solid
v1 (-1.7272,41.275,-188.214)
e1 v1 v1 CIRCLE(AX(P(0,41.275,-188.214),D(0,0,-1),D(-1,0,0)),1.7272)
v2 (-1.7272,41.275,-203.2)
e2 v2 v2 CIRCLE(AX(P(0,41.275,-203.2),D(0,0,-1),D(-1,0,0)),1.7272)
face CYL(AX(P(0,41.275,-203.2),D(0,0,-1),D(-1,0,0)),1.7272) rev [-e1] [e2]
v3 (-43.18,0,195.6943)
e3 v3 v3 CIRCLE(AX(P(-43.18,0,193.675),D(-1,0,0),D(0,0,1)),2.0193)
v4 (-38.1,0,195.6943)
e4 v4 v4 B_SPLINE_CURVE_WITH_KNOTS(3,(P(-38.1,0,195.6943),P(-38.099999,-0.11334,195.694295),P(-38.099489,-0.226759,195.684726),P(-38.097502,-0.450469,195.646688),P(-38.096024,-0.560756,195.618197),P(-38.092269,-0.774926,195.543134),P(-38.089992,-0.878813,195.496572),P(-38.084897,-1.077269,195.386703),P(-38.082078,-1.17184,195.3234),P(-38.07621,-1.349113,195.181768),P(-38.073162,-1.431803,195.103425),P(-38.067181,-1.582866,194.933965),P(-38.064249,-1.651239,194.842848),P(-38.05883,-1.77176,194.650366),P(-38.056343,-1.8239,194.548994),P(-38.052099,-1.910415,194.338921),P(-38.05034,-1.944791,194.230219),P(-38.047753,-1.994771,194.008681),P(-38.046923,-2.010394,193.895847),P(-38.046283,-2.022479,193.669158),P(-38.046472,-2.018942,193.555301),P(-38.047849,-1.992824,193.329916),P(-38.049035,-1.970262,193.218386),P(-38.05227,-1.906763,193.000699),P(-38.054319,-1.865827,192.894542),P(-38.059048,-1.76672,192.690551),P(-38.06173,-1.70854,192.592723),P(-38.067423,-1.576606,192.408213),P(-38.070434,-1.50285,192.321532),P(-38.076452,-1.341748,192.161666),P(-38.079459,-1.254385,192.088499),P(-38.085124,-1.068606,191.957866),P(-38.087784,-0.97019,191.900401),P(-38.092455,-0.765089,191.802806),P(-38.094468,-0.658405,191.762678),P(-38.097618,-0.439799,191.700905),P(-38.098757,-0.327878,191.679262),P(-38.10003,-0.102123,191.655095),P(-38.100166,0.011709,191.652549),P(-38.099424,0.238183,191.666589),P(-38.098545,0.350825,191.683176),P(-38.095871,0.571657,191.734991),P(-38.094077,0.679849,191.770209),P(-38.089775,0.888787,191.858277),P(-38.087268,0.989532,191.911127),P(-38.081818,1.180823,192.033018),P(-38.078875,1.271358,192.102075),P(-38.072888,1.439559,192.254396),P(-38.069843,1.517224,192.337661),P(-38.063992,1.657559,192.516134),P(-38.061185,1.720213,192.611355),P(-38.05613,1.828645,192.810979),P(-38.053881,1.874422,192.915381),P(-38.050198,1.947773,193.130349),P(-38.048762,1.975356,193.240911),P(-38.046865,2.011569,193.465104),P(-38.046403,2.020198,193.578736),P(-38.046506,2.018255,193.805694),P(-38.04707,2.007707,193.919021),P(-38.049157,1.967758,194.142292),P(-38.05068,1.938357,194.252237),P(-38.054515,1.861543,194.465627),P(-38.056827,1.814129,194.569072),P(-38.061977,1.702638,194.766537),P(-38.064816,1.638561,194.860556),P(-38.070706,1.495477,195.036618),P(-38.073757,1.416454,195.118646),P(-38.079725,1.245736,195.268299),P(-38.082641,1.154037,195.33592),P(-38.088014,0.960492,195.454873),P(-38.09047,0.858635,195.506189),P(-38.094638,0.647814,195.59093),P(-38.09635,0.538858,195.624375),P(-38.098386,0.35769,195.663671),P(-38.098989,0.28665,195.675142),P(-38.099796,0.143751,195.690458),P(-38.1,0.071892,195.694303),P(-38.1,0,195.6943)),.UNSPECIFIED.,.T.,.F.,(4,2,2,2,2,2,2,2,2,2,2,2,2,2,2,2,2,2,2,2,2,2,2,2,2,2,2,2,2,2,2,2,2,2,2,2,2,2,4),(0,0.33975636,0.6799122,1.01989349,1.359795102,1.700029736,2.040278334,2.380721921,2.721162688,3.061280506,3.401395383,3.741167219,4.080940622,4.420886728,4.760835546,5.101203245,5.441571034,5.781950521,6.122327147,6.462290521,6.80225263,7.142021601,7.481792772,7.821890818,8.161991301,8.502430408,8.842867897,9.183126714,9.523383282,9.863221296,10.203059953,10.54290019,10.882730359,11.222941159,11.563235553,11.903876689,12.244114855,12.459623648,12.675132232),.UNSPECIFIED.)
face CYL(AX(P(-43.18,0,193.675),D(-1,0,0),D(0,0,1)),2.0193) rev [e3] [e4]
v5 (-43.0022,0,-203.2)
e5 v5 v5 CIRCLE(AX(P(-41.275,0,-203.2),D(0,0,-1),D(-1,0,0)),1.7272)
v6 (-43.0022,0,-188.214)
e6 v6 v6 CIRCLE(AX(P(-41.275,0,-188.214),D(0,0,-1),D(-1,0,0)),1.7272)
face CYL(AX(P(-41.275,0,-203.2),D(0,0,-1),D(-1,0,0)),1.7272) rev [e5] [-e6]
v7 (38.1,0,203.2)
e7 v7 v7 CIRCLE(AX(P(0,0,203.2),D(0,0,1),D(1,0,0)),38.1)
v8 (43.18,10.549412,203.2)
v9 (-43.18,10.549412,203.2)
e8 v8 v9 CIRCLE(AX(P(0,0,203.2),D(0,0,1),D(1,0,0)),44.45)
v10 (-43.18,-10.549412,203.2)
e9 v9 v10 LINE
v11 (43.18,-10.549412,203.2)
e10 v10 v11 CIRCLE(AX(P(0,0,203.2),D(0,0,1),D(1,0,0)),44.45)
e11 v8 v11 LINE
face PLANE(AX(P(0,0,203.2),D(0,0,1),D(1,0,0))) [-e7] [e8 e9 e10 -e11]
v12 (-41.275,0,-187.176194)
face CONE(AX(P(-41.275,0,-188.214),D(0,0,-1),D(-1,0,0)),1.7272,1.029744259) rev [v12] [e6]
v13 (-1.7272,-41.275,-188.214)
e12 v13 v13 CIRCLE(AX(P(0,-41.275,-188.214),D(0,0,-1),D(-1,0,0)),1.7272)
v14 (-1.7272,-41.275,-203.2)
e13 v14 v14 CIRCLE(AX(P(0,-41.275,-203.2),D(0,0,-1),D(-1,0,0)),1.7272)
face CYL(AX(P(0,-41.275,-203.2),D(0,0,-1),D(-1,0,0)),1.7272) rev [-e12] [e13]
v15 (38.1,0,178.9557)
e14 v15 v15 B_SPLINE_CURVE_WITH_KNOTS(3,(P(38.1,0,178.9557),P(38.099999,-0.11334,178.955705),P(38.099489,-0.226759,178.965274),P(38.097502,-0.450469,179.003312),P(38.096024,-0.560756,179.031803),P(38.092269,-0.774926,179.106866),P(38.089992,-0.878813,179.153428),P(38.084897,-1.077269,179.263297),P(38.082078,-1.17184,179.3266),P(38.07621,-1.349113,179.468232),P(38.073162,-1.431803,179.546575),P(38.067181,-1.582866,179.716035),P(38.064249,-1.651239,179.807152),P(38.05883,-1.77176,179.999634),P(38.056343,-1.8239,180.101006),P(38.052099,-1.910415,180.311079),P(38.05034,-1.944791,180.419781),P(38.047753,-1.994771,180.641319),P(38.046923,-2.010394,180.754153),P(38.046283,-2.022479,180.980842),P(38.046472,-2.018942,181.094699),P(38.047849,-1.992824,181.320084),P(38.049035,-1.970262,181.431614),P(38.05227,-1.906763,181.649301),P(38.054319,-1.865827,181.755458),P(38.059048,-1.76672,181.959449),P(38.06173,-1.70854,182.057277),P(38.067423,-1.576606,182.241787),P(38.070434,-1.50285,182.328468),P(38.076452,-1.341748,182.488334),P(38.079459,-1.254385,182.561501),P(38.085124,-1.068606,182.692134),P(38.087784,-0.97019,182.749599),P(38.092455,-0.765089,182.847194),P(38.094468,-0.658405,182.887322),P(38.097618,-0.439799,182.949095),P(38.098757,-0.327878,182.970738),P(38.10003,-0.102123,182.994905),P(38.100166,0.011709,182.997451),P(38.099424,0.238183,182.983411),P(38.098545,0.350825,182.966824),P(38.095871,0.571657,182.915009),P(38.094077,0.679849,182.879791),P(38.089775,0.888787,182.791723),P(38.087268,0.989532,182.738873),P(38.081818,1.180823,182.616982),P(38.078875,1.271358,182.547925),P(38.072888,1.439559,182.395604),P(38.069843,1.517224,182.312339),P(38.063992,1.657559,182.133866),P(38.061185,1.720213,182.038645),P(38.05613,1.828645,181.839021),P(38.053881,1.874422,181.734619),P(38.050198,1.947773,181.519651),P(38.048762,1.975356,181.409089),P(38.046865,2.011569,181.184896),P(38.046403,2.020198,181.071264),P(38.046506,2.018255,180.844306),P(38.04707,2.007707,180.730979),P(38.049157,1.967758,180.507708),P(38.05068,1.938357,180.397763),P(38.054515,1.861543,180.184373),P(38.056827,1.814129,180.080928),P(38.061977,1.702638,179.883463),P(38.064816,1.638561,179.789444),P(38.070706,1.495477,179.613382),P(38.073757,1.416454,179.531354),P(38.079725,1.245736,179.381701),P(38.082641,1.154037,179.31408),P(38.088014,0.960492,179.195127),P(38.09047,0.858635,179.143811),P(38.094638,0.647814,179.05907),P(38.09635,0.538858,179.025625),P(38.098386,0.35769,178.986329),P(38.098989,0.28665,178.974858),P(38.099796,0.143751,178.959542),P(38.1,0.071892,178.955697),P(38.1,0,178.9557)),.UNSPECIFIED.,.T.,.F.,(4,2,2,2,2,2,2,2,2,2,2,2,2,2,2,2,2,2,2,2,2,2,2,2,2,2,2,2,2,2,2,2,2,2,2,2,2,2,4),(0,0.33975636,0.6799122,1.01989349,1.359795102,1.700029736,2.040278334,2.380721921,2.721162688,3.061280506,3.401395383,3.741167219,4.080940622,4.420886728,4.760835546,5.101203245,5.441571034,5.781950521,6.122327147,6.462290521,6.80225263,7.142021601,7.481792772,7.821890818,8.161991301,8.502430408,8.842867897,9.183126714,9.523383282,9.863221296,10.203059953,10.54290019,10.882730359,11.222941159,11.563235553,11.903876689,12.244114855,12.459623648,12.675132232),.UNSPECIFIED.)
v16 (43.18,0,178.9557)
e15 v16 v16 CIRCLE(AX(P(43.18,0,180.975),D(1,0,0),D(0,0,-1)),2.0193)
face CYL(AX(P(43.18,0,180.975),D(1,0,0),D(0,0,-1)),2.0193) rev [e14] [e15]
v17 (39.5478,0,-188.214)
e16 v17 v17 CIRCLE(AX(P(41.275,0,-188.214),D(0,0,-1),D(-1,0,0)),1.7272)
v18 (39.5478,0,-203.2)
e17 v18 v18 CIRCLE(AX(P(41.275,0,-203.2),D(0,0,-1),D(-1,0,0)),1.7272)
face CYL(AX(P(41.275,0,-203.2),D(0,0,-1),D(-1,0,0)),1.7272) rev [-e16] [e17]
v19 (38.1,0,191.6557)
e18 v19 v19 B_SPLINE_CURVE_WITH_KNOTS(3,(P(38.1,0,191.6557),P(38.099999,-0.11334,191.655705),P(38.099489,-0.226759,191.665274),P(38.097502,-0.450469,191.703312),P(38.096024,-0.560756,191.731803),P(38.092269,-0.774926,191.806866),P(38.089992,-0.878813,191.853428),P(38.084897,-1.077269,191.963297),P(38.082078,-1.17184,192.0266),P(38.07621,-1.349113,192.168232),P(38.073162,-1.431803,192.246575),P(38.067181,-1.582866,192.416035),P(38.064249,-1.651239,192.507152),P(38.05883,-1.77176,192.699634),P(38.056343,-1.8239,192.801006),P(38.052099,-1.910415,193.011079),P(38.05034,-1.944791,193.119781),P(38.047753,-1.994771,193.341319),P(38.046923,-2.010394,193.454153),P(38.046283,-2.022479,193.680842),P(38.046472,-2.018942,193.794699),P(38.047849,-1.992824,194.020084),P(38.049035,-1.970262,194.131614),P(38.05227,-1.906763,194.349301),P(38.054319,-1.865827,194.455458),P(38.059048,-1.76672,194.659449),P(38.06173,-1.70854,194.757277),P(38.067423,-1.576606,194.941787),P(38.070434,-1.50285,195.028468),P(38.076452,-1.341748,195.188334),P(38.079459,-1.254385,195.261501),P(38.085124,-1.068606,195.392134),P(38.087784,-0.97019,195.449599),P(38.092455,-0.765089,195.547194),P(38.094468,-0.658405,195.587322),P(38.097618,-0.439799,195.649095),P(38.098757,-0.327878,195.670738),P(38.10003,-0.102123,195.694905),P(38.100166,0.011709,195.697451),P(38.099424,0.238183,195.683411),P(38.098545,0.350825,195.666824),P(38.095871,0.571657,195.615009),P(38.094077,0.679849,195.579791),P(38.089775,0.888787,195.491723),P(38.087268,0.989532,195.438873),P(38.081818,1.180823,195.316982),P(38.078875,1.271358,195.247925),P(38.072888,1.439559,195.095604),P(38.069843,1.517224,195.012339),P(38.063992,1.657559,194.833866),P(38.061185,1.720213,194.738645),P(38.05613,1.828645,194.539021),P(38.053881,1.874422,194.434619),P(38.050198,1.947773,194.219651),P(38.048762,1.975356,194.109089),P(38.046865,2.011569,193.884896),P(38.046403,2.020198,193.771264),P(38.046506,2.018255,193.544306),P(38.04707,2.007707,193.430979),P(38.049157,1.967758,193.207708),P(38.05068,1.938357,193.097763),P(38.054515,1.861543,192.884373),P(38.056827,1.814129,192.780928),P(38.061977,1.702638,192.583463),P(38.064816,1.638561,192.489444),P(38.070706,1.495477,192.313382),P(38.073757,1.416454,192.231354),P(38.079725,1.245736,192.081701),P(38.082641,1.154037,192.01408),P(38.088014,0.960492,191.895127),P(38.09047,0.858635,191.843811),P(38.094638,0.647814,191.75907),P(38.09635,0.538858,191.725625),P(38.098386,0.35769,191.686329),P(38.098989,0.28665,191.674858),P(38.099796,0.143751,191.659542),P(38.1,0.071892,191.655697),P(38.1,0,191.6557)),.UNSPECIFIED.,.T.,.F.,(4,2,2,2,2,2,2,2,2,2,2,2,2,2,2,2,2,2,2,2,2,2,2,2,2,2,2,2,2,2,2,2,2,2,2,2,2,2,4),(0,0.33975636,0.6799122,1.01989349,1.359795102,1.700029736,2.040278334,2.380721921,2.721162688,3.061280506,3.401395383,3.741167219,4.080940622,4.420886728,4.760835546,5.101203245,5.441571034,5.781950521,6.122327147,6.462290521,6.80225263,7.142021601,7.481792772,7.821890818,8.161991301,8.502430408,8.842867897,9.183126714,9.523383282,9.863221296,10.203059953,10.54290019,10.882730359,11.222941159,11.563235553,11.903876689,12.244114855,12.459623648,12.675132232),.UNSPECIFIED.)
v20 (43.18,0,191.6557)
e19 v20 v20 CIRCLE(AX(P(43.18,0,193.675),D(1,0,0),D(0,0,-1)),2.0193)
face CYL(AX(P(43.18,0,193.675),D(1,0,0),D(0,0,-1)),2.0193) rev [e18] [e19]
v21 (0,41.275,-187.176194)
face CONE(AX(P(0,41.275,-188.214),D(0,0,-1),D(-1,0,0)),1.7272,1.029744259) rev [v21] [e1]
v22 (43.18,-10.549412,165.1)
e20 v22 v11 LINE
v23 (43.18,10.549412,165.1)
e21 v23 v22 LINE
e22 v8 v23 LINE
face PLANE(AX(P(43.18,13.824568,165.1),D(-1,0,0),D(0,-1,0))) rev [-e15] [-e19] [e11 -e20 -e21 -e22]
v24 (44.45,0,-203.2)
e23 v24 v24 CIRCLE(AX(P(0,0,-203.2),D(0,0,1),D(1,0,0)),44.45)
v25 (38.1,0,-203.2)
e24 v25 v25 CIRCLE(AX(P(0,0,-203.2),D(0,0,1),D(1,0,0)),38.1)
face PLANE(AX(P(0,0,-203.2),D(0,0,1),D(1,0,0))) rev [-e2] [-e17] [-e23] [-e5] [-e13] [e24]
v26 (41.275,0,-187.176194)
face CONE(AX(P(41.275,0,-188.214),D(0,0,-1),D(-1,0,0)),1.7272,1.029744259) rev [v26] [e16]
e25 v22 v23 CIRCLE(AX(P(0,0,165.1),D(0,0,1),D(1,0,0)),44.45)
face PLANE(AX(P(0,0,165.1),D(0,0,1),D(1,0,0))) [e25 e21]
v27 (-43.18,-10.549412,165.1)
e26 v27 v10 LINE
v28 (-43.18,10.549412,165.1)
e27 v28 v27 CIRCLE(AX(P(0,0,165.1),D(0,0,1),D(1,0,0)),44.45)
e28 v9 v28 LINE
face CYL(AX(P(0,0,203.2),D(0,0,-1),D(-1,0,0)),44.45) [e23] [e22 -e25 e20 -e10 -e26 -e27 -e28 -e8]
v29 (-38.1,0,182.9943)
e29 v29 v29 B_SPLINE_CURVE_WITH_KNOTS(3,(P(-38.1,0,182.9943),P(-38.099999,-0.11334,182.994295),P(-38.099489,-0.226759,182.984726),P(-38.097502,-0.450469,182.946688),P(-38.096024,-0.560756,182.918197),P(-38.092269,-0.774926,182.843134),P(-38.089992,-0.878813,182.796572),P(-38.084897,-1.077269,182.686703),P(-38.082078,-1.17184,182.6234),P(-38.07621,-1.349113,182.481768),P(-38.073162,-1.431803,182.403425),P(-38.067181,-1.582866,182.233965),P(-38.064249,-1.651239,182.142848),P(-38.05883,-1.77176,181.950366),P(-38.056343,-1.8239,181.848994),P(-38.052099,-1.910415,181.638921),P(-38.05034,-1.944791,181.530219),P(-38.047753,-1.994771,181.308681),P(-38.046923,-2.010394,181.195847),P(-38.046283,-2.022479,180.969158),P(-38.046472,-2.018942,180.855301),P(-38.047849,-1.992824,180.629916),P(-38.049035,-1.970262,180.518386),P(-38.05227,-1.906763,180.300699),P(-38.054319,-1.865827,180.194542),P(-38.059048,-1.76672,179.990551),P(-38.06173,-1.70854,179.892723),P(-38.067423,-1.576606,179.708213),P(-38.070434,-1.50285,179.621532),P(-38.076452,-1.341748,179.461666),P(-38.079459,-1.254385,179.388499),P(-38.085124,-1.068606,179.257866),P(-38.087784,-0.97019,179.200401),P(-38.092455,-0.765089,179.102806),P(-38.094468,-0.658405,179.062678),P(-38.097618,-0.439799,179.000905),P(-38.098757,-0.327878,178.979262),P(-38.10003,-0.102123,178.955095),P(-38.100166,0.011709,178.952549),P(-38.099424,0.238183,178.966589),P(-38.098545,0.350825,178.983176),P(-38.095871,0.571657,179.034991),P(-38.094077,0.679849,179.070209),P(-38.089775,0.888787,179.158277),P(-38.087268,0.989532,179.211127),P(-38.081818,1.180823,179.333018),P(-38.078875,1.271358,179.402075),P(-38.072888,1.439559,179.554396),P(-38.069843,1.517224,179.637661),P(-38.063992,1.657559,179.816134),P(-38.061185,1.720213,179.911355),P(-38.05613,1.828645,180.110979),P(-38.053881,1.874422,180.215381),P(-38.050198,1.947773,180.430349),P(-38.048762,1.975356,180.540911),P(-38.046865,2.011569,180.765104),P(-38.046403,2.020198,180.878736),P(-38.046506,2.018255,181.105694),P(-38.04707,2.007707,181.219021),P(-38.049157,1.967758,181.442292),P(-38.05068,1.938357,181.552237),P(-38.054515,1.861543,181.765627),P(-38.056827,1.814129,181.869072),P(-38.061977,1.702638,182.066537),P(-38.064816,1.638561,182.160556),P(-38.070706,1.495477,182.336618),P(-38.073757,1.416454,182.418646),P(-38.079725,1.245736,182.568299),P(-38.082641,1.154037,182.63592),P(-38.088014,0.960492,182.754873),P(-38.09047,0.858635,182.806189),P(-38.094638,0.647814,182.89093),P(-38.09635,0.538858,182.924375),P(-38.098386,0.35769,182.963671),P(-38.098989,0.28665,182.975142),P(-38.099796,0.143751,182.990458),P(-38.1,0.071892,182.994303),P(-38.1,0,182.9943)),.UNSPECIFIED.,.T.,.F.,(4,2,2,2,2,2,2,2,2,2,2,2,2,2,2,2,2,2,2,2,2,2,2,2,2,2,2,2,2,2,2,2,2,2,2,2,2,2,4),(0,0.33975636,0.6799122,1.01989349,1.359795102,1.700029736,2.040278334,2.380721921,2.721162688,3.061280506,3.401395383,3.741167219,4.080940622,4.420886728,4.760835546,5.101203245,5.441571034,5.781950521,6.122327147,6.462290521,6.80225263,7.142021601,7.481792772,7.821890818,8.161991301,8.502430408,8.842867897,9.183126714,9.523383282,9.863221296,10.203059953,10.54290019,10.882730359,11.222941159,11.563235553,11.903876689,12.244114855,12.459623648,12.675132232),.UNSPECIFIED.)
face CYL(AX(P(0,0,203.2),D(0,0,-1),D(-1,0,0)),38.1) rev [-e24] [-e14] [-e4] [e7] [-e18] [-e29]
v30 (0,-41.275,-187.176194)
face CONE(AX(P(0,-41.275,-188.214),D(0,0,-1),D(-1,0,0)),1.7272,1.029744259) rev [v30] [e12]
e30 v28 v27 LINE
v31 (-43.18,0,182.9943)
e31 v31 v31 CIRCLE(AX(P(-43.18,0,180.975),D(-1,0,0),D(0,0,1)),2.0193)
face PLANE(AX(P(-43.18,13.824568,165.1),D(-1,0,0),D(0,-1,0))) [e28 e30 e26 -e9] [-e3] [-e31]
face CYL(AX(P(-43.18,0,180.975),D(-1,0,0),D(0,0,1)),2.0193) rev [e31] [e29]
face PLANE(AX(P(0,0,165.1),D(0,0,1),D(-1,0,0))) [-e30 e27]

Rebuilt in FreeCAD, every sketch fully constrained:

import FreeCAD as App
import Part
import Sketcher
from FreeCAD import Vector
Q = App.Units.Quantity


def add_polygon(sketch, points):
    """Adds a closed chain of lines whose ends are joined by coincident constraints."""
    first, n = sketch.GeometryCount, len(points)
    for a, b in zip(points, points[1:] + points[:1]):
        sketch.addGeometry(Part.LineSegment(App.Vector(*a, 0), App.Vector(*b, 0)), False)
    for i in range(n):
        sketch.addConstraint(Sketcher.Constraint("Coincident", first + i, 2, first + (i + 1) % n, 1))

doc = App.newDocument("Part")
params = doc.addObject("Spreadsheet::Sheet", "Params")
for row, (alias, value) in enumerate([
    ("sketch1_diameter", "3 in"),
    ("sketch1_diameter2", "3.5 in"),
    ("pad1_length", "16 in"),
    ("pocket1_length", "1.5 in"),
    ("sketch3_width", "0.54 in"),
    ("groove_angle", "360 deg"),
    ("linearpattern_pitch", "0.5 in"),
    ("sketch4_diameter", "0.136 in"),
    ("hole_diameter", "0.136 in"),
    ("hole_depth", "0.59 in"),
    ("sketch5_width", "0.54 in"),
    ("groove2_angle", "360 deg"),
], start=1):
    params.set(f"A{row}", alias)
    params.set(f"B{row}", "=" + value)
    params.setAlias(f"B{row}", alias)

body = doc.addObject("PartDesign::Body", "Body")

# Sketch on XY plane
sketch1 = doc.addObject("Sketcher::SketchObject", "Sketch")
body.addObject(sketch1)
sketch1.AttachmentSupport = (doc.XY_Plane, [""])
sketch1.MapMode = "FlatFace"
sketch1.addGeometry(Part.Circle(Vector(0, 0, 0), Vector(0, 0, 1), 44), False)
sketch1.addGeometry(Part.Circle(Vector(0, 0, 0), Vector(0, 0, 1), 38), False)
sketch1.addConstraint(Sketcher.Constraint("Coincident", 0, 3, -1, 1))
sketch1.addConstraint(Sketcher.Constraint("Coincident", 1, 3, -1, 1))
sketch1.addConstraint(Sketcher.Constraint("Diameter", 1, Q("3 in")))
sketch1.addConstraint(Sketcher.Constraint("Diameter", 0, Q("3.5 in")))
sketch1.setExpression("Constraints[2]", "Params.sketch1_diameter")
sketch1.setExpression("Constraints[3]", "Params.sketch1_diameter2")
pad1 = doc.addObject("PartDesign::Pad", "Pad")
body.addObject(pad1)
pad1.Profile = sketch1
pad1.setExpression("Length", "Params.pad1_length")
pad1.Midplane = True

# Sketch on XY plane
sketch2 = doc.addObject("Sketcher::SketchObject", "Sketch001")
body.addObject(sketch2)
sketch2.AttachmentSupport = (doc.XY_Plane, [""])
sketch2.MapMode = "FlatFace"
sketch2.AttachmentOffset = App.Placement(Vector(0, 0, 8 * 25.4), App.Rotation())
add_polygon(sketch2, [(43, 14), (43, -15), (51, -15), (51, 14)])  # lines 0-3
sketch2.addConstraint(Sketcher.Constraint("Vertical", 0))
sketch2.addConstraint(Sketcher.Constraint("Horizontal", 1))
sketch2.addConstraint(Sketcher.Constraint("Vertical", 2))
sketch2.addConstraint(Sketcher.Constraint("Horizontal", 3))
sketch2.addConstraint(Sketcher.Constraint("DistanceX", -1, 1, 0, 2, Q("1.7 in")))
sketch2.addConstraint(Sketcher.Constraint("DistanceX", 1, 1, 1, 2, Q("7.899753 mm")))
sketch2.addConstraint(Sketcher.Constraint("DistanceY", 0, 2, 0, 1, Q("28.462347 mm")))
sketch2.addConstraint(Sketcher.Constraint("DistanceY", 0, 2, -1, 1, Q("14.637778 mm")))
pocket1 = doc.addObject("PartDesign::Pocket", "Pocket")
body.addObject(pocket1)
pocket1.Profile = sketch2
pocket1.setExpression("Length", "Params.pocket1_length")

# Sketch on XZ plane
sketch3 = doc.addObject("Sketcher::SketchObject", "Sketch002")
body.addObject(sketch3)
sketch3.AttachmentSupport = (doc.XZ_Plane, [""])
sketch3.MapMode = "FlatFace"
add_polygon(sketch3, [(28.3, 193.7), (43.2, 193.7), (43.2, 191.7), (29.5, 191.7)])  # lines 0-3
sketch3.addGeometry(Part.LineSegment(Vector(43.2, 193.7, 0), Vector(28.3, 193.7, 0)), True)  # axis
sketch3.addConstraint(Sketcher.Constraint("Horizontal", 0))
sketch3.addConstraint(Sketcher.Constraint("Vertical", 1))
sketch3.addConstraint(Sketcher.Constraint("Horizontal", 2))
sketch3.addConstraint(Sketcher.Constraint("Horizontal", 4))
sketch3.addConstraint(Sketcher.Constraint("Coincident", 4, 1, 0, 2))
sketch3.addConstraint(Sketcher.Constraint("Equal", 0, 4))
sketch3.addConstraint(Sketcher.Constraint("Angle", 3, Q("121 deg")))
sketch3.addConstraint(Sketcher.Constraint("DistanceX", 2, 2, 2, 1, Q("0.54 in")))
sketch3.addConstraint(Sketcher.Constraint("DistanceX", -1, 1, 0, 2, Q("1.7 in")))
sketch3.addConstraint(Sketcher.Constraint("DistanceY", 1, 2, 1, 1, Q("0.0795 in")))
sketch3.addConstraint(Sketcher.Constraint("DistanceY", -1, 1, 0, 2, Q("7.625 in")))
sketch3.setExpression("Constraints[11]", "Params.sketch3_width")
groove = doc.addObject("PartDesign::Groove", "Groove")
body.addObject(groove)
groove.Profile = sketch3
groove.ReferenceAxis = (sketch3, ["Axis0"])
groove.setExpression("Angle", "Params.groove_angle")
doc.recompute()

linearpattern = doc.addObject("PartDesign::LinearPattern", "LinearPattern")
body.addObject(linearpattern)
linearpattern.Originals = [groove]
linearpattern.Direction = (doc.Z_Axis, [""])
linearpattern.Mode = "offset"
linearpattern.setExpression("Offset", "Params.linearpattern_pitch")
linearpattern.Occurrences = 2
linearpattern.Reversed = True
body.Tip = linearpattern

# Sketch on XY plane
sketch4 = doc.addObject("Sketcher::SketchObject", "Sketch003")
body.addObject(sketch4)
sketch4.AttachmentSupport = (doc.XY_Plane, [""])
sketch4.MapMode = "FlatFace"
sketch4.AttachmentOffset = App.Placement(Vector(0, 0, -8 * 25.4), App.Rotation())
sketch4.addGeometry(Part.Circle(Vector(0, 41.3, 0), Vector(0, 0, 1), 1.7), False)
sketch4.addGeometry(Part.Circle(Vector(41.3, 0, 0), Vector(0, 0, 1), 1.7), False)
sketch4.addGeometry(Part.Circle(Vector(-41.3, 0, 0), Vector(0, 0, 1), 1.7), False)
sketch4.addGeometry(Part.Circle(Vector(0, -41.3, 0), Vector(0, 0, 1), 1.7), False)
sketch4.addConstraint(Sketcher.Constraint("Equal", 0, 1))
sketch4.addConstraint(Sketcher.Constraint("Equal", 1, 2))
sketch4.addConstraint(Sketcher.Constraint("Equal", 2, 3))
sketch4.addConstraint(Sketcher.Constraint("Symmetric", 1, 3, 2, 3, -1, 1))
sketch4.addConstraint(Sketcher.Constraint("Symmetric", 0, 3, 3, 3, -1, 1))
sketch4.addConstraint(Sketcher.Constraint("PointOnObject", 0, 3, -2))
sketch4.addConstraint(Sketcher.Constraint("PointOnObject", 1, 3, -1))
sketch4.addConstraint(Sketcher.Constraint("Diameter", 0, Q("0.136 in")))
sketch4.addConstraint(Sketcher.Constraint("DistanceX", 2, 3, 1, 3, Q("3.25 in")))
sketch4.addConstraint(Sketcher.Constraint("DistanceY", 3, 3, 0, 3, Q("3.25 in")))
sketch4.setExpression("Constraints[7]", "Params.sketch4_diameter")
doc.recompute()
hole = doc.addObject("PartDesign::Hole", "Hole")
body.addObject(hole)
hole.Profile = sketch4
hole.ThreadType = "None"
hole.setExpression("Diameter", "Params.hole_diameter")
hole.DepthType = "Dimension"
hole.setExpression("Depth", "Params.hole_depth")
hole.DrillPoint = "Angled"
hole.DrillPointAngle = 118
hole.Reversed = True
doc.recompute()

mirrored = doc.addObject("PartDesign::Mirrored", "Mirrored")
body.addObject(mirrored)
mirrored.Originals = [pocket1, groove]
mirrored.MirrorPlane = (doc.YZ_Plane, [""])
body.Tip = mirrored

# Sketch on XZ plane
sketch5 = doc.addObject("Sketcher::SketchObject", "Sketch004")
body.addObject(sketch5)
sketch5.AttachmentSupport = (doc.XZ_Plane, [""])
sketch5.MapMode = "FlatFace"
add_polygon(sketch5, [(-43.2, 181), (-28.3, 181), (-29.5, 179), (-43.2, 179)])  # lines 0-3
sketch5.addGeometry(Part.LineSegment(Vector(-28.3, 181, 0), Vector(-43.2, 181, 0)), True)  # axis
sketch5.addConstraint(Sketcher.Constraint("Horizontal", 0))
sketch5.addConstraint(Sketcher.Constraint("Horizontal", 2))
sketch5.addConstraint(Sketcher.Constraint("Vertical", 3))
sketch5.addConstraint(Sketcher.Constraint("Horizontal", 4))
sketch5.addConstraint(Sketcher.Constraint("Coincident", 4, 1, 0, 2))
sketch5.addConstraint(Sketcher.Constraint("Vertical", 2, 2, 4, 2))
sketch5.addConstraint(Sketcher.Constraint("Angle", 1, Q("-121 deg")))
sketch5.addConstraint(Sketcher.Constraint("DistanceX", 2, 2, 2, 1, Q("0.54 in")))
sketch5.addConstraint(Sketcher.Constraint("DistanceX", 2, 2, -1, 1, Q("1.7 in")))
sketch5.addConstraint(Sketcher.Constraint("DistanceY", 3, 1, 3, 2, Q("0.0795 in")))
sketch5.addConstraint(Sketcher.Constraint("DistanceY", -1, 1, 0, 2, Q("7.125 in")))
sketch5.setExpression("Constraints[11]", "Params.sketch5_width")
groove2 = doc.addObject("PartDesign::Groove", "Groove001")
body.addObject(groove2)
groove2.Profile = sketch5
groove2.ReferenceAxis = (sketch5, ["Axis0"])
groove2.setExpression("Angle", "Params.groove2_angle")

doc.recompute()
